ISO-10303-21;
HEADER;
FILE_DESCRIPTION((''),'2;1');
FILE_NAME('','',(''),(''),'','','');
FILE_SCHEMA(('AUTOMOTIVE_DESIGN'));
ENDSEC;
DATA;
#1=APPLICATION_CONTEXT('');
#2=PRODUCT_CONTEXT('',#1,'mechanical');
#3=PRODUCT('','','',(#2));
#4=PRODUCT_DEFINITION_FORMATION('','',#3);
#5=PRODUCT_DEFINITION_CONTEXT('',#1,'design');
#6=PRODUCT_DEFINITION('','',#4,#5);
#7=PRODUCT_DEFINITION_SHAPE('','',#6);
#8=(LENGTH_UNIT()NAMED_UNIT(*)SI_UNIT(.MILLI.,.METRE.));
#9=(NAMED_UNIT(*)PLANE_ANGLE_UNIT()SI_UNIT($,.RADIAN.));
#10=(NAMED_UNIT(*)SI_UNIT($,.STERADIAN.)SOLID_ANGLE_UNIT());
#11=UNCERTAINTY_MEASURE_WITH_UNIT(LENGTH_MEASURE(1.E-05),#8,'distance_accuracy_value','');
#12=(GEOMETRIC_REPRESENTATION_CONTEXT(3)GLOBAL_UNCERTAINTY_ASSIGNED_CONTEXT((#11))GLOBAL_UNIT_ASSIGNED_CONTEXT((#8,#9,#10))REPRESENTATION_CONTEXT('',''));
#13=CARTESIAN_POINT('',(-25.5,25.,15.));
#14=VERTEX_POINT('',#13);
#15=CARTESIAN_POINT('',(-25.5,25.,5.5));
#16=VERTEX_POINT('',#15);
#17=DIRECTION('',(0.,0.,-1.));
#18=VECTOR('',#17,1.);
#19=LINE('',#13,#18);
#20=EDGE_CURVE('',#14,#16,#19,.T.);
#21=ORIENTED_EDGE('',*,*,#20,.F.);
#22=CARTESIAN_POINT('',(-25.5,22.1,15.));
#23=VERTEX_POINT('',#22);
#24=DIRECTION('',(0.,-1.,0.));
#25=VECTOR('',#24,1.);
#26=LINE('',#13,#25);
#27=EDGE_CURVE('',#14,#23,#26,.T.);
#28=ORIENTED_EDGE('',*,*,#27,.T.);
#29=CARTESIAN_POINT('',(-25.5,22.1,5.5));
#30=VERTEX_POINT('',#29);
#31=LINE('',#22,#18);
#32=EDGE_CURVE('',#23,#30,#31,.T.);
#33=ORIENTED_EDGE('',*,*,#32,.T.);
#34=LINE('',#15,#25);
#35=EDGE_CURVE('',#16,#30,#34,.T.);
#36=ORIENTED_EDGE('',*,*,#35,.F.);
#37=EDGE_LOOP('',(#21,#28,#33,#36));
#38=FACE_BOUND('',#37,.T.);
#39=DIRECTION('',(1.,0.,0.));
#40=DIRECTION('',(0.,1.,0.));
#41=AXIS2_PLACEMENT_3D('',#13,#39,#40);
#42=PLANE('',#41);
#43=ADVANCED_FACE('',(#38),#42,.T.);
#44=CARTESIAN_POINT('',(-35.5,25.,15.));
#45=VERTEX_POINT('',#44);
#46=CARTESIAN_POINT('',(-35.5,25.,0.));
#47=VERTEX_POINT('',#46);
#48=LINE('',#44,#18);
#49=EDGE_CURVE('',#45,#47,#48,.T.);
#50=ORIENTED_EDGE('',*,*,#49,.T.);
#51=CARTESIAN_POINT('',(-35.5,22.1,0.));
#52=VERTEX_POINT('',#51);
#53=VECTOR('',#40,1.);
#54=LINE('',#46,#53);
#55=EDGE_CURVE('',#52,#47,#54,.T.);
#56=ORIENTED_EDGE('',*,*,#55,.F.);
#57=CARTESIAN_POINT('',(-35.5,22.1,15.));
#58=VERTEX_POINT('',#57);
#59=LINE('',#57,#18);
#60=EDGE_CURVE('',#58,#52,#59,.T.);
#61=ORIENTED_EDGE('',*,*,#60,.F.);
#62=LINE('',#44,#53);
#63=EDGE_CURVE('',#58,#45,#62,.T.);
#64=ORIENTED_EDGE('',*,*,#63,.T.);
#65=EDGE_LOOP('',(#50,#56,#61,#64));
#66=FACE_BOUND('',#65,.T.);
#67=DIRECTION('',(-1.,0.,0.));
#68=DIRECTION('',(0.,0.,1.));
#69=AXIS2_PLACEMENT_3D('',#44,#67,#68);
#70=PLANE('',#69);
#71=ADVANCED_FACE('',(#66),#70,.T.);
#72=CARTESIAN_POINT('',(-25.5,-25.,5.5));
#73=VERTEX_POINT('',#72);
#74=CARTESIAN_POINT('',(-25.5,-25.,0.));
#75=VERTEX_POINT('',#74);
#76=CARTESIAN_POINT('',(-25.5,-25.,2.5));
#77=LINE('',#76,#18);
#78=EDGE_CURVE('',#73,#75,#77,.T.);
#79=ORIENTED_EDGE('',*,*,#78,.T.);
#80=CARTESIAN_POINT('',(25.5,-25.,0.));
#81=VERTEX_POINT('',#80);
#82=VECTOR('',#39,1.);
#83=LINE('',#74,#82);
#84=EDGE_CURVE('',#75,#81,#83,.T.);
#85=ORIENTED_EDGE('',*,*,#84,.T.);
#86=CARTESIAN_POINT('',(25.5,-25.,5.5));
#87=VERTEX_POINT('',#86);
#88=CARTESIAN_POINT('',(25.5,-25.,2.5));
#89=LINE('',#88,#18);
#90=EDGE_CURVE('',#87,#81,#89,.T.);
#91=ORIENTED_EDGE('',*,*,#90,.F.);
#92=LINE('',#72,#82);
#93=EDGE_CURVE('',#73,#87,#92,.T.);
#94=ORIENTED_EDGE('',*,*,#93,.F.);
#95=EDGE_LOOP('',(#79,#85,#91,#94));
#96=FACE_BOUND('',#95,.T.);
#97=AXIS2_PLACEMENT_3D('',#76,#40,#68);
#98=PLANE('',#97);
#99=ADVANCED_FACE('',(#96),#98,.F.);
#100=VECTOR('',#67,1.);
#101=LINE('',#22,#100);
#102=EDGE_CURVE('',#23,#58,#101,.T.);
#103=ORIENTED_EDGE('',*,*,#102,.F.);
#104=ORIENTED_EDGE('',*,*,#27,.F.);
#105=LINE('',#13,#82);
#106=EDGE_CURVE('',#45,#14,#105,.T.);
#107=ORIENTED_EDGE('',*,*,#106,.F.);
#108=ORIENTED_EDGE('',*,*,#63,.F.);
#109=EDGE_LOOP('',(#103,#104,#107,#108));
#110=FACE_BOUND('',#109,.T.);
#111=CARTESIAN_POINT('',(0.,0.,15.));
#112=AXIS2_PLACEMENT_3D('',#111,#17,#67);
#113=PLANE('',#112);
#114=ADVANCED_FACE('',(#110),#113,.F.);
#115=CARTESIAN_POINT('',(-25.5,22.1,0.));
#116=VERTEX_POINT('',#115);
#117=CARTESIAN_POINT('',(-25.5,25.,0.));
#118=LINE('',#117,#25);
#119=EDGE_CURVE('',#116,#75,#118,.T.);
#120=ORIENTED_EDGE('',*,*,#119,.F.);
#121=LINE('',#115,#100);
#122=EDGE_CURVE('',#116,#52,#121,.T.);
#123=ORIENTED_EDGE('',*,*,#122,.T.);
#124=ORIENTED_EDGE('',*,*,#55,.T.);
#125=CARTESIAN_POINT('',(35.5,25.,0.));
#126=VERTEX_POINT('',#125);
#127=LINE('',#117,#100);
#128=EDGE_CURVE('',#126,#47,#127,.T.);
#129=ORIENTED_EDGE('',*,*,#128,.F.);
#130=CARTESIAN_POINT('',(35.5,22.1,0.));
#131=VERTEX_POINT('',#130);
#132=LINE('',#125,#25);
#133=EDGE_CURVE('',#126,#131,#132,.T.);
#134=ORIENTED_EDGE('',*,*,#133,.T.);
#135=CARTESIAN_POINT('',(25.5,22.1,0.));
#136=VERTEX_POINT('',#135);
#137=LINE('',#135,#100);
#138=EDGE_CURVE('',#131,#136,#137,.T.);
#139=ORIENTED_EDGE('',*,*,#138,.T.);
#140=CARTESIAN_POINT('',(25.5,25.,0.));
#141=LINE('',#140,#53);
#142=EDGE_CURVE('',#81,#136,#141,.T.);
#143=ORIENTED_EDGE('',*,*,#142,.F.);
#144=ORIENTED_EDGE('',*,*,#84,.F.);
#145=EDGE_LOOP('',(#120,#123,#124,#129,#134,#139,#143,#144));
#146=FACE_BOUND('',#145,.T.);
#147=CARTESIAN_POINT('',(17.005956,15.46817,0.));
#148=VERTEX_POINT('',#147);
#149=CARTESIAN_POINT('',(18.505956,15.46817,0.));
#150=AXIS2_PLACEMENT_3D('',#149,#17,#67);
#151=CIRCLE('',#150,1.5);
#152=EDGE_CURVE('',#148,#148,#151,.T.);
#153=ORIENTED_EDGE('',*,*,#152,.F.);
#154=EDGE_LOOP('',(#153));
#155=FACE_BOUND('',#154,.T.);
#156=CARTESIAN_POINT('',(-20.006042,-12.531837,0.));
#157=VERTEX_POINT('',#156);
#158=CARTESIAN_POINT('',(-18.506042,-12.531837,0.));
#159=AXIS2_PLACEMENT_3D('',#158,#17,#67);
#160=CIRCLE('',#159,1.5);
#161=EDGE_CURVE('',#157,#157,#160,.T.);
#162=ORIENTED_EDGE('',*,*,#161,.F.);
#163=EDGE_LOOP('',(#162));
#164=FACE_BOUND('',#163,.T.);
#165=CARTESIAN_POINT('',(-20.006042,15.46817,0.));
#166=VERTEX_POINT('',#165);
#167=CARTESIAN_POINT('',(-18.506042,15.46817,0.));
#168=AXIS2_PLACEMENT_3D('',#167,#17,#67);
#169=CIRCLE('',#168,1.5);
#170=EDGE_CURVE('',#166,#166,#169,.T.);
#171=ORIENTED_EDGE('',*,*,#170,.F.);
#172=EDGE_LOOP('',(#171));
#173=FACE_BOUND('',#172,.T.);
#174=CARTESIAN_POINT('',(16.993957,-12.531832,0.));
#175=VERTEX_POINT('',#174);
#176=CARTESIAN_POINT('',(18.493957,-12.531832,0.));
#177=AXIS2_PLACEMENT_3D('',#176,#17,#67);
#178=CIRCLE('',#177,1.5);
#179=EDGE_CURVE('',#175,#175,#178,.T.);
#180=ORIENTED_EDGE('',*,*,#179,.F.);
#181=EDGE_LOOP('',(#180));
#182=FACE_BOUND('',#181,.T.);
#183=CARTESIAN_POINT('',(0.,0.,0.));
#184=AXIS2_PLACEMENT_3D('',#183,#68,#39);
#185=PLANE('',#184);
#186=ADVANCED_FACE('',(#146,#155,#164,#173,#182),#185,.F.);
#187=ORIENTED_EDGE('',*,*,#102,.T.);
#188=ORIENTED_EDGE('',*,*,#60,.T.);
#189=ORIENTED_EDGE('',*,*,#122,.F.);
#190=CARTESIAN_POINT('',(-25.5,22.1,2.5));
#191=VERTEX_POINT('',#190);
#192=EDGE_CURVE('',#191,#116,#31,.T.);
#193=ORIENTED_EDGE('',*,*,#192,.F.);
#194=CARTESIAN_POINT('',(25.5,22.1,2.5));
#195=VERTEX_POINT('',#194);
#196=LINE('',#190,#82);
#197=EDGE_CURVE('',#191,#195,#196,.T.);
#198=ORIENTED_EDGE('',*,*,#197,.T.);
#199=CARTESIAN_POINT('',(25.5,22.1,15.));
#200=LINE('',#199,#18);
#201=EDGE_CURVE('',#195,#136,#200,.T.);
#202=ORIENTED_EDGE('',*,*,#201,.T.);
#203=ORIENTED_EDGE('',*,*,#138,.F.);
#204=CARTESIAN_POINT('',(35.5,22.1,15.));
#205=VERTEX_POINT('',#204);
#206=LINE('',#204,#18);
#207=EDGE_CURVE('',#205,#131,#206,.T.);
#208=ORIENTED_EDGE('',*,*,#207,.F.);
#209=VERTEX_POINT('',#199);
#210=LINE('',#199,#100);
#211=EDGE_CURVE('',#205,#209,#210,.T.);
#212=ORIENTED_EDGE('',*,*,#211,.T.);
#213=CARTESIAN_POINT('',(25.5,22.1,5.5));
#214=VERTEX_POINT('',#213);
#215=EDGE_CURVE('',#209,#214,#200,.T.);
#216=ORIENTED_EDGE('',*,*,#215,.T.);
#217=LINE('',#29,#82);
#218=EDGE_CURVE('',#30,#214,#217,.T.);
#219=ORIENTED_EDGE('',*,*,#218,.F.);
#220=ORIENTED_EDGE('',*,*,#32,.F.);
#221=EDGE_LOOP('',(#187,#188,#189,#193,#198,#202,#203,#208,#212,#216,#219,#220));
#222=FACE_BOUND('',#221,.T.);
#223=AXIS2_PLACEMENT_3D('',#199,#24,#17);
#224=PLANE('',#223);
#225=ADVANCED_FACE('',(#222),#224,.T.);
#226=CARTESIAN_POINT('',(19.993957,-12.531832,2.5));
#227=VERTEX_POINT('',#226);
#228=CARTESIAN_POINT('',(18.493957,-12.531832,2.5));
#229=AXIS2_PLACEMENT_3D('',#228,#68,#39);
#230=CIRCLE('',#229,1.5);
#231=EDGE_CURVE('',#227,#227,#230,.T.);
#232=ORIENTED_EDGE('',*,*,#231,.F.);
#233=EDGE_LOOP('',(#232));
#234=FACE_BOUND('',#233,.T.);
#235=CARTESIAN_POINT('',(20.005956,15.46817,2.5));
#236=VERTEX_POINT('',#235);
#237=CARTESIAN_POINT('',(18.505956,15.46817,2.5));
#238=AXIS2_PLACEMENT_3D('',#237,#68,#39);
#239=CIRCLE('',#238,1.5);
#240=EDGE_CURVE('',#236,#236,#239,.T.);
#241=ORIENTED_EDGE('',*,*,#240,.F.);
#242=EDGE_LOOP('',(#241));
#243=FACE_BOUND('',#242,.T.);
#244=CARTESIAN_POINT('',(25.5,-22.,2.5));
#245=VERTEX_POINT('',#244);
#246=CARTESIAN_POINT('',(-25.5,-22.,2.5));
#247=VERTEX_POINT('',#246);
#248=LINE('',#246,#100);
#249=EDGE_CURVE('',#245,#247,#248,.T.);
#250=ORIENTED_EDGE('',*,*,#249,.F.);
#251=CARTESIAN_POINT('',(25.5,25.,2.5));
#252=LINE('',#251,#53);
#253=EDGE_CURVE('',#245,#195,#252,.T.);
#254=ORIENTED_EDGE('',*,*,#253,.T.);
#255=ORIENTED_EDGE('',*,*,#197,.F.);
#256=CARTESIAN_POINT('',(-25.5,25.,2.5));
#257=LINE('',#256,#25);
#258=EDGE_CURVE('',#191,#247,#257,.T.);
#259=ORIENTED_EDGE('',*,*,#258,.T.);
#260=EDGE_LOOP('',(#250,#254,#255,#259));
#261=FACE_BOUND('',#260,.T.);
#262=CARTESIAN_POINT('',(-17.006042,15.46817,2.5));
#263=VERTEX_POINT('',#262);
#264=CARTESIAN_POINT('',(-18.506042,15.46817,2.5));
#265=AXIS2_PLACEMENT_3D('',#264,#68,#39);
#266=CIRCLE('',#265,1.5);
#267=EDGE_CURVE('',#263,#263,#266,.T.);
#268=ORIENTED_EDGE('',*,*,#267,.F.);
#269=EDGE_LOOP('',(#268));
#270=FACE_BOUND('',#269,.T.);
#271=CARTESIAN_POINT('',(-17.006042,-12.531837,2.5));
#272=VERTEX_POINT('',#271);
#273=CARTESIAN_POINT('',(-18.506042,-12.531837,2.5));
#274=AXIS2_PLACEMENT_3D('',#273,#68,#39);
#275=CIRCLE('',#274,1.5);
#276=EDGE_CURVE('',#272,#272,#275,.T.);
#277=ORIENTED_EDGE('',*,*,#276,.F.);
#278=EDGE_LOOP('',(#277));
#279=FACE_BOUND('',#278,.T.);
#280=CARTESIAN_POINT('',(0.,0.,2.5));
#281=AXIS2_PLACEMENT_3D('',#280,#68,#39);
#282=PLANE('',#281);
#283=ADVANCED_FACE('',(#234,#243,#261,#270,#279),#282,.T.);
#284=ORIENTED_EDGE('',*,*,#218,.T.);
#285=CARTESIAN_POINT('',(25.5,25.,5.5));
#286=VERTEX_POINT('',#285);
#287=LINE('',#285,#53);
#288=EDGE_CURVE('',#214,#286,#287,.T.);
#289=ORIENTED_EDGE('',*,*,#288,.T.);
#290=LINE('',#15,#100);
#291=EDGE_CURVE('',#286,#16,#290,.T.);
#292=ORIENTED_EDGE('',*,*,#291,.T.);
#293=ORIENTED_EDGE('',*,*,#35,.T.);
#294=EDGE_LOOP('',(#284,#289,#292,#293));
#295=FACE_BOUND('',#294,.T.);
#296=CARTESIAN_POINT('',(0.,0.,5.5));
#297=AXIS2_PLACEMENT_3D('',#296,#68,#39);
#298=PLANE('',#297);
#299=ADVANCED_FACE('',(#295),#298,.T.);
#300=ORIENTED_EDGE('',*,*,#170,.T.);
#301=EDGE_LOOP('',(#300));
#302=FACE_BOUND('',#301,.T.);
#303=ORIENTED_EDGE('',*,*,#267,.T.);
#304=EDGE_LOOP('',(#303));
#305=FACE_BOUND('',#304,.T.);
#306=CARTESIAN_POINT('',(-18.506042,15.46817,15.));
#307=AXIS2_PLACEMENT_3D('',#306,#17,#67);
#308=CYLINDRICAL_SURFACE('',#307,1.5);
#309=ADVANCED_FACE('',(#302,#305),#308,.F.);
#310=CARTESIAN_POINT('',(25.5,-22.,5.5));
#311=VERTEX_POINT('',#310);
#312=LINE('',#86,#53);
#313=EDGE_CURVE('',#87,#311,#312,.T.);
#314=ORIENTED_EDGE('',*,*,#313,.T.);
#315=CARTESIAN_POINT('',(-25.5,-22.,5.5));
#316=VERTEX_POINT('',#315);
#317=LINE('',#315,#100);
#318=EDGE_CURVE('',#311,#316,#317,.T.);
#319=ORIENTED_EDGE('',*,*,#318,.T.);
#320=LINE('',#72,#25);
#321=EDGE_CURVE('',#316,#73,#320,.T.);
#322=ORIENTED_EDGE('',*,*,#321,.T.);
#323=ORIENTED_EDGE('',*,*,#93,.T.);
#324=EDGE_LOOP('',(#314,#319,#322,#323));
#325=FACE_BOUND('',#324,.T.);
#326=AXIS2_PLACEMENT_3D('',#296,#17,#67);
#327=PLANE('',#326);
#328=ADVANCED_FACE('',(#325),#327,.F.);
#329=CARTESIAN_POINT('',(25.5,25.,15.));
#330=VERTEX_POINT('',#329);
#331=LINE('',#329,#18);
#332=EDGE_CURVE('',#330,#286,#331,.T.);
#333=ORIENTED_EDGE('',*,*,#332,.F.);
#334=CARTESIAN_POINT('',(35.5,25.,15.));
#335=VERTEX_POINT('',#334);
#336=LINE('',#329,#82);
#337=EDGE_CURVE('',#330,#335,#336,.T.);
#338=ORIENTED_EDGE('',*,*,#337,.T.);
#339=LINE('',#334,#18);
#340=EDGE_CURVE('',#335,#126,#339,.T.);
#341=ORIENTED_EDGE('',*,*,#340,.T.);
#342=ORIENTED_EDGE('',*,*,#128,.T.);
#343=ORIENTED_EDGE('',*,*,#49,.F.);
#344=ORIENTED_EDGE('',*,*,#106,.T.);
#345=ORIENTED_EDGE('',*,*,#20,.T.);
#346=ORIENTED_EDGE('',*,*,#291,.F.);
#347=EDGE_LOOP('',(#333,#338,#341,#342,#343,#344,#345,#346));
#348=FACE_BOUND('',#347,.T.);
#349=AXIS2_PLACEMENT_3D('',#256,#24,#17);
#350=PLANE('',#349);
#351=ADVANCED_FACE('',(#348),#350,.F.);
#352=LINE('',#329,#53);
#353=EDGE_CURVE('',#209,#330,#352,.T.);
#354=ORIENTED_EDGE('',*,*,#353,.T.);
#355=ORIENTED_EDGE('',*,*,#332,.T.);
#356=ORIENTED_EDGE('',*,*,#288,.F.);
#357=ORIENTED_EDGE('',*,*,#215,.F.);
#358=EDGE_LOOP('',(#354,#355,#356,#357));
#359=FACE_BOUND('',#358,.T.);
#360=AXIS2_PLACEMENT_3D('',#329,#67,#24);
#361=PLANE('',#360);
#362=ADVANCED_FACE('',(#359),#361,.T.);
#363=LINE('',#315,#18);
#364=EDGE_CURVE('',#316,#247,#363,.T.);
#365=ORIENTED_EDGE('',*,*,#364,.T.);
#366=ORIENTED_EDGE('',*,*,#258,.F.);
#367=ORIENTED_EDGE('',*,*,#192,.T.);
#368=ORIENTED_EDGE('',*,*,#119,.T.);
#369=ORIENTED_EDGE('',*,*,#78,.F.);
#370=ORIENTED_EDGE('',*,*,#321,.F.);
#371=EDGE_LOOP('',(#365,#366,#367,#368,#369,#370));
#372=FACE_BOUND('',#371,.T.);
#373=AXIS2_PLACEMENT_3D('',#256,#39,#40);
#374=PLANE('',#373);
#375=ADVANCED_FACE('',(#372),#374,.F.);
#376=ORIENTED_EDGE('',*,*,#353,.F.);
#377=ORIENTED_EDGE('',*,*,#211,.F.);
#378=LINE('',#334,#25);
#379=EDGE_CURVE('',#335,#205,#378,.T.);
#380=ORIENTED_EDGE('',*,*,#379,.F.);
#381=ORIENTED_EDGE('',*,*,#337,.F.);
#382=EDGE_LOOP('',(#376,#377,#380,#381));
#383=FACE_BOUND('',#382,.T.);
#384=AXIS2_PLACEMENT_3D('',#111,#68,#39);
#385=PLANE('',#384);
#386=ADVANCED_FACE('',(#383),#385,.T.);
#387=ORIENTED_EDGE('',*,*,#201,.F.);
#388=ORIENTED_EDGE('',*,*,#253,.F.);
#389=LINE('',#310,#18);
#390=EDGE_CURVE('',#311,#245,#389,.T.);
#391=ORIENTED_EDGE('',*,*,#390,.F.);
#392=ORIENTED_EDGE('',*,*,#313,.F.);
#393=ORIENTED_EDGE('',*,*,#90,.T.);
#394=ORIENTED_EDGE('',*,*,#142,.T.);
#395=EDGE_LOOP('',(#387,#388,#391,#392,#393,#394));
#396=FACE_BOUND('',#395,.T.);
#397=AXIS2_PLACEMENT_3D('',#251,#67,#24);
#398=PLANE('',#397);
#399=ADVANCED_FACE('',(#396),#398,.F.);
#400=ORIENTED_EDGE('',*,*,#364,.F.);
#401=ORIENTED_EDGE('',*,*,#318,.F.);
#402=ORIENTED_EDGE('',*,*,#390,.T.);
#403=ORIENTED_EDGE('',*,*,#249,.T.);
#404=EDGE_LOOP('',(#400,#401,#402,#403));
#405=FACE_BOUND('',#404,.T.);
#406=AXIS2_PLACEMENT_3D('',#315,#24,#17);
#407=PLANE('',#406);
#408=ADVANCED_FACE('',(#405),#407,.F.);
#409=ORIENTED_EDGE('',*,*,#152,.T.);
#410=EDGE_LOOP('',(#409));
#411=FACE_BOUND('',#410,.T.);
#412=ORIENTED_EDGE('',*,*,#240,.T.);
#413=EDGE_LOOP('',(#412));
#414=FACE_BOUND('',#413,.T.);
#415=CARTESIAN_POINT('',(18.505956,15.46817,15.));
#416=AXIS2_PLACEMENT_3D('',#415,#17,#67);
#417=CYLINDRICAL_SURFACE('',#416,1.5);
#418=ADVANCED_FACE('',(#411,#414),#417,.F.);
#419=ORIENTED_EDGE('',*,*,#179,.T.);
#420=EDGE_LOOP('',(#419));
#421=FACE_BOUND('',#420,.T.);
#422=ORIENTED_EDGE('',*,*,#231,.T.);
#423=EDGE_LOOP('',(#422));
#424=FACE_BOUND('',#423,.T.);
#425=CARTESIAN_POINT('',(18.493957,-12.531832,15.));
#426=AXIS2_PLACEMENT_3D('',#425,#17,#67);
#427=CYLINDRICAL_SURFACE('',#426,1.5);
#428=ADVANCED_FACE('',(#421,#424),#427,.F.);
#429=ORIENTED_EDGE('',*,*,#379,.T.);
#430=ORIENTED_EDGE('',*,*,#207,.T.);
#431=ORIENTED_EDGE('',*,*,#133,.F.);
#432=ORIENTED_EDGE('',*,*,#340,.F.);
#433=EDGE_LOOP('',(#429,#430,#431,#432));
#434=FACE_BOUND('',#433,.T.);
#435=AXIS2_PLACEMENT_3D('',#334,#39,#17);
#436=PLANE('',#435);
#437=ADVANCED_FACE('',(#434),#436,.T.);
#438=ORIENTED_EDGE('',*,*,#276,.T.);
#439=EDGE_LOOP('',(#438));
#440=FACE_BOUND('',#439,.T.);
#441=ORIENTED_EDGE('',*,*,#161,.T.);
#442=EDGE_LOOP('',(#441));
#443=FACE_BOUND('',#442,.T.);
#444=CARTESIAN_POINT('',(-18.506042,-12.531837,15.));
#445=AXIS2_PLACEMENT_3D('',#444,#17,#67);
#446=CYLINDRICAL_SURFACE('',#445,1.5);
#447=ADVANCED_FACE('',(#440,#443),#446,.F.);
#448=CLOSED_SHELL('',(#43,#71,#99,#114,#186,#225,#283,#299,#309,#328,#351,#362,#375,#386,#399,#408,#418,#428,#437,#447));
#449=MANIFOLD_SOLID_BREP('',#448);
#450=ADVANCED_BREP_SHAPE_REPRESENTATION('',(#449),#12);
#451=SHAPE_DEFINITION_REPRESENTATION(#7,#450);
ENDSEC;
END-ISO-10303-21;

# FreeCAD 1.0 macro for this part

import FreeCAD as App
import Part
import Sketcher
Q = App.Units.Quantity


def add_polygon(sketch, points):
    """Adds a closed chain of lines whose ends are joined by coincident constraints."""
    first, n = sketch.GeometryCount, len(points)
    for a, b in zip(points, points[1:] + points[:1]):
        sketch.addGeometry(Part.LineSegment(App.Vector(*a, 0), App.Vector(*b, 0)), False)
    for i in range(n):
        sketch.addConstraint(Sketcher.Constraint("Coincident", first + i, 2, first + (i + 1) % n, 1))

doc = App.newDocument("Part")
body = doc.addObject("PartDesign::Body", "Body")

sketch1 = doc.addObject("Sketcher::SketchObject", "Sketch")
body.addObject(sketch1)
sketch1.AttachmentSupport = (doc.XY_Plane, [""])
sketch1.MapMode = "FlatFace"
add_polygon(sketch1, [(-26, 25), (-26, -25), (26, -25), (26, 25)])
sketch1.addConstraint([
    Sketcher.Constraint("Vertical", 0),
    Sketcher.Constraint("Horizontal", 1),
    Sketcher.Constraint("Vertical", 2),
    Sketcher.Constraint("Horizontal", 3),
    Sketcher.Constraint("Symmetric", 0, 2, 2, 2, -1, 1),
    Sketcher.Constraint("DistanceX", 1, 1, 1, 2, Q("51 mm")),
    Sketcher.Constraint("DistanceY", 0, 2, 0, 1, Q("50 mm")),
])
pad1 = doc.addObject("PartDesign::Pad", "Pad")
body.addObject(pad1)
pad1.Profile = sketch1
pad1.Length = 2.5

sketch2 = doc.addObject("Sketcher::SketchObject", "Sketch001")
body.addObject(sketch2)
sketch2.AttachmentSupport = (doc.XY_Plane, [""])
sketch2.MapMode = "FlatFace"
add_polygon(sketch2, [(35.5, 25), (35.5, 22.1), (25.5, 22.1), (25.5, 25)])
add_polygon(sketch2, [(-25.5, 25), (-25.5, 22.1), (-35.5, 22.1), (-35.5, 25)])
sketch2.addConstraint([
    Sketcher.Constraint("Vertical", 0),
    Sketcher.Constraint("Horizontal", 1),
    Sketcher.Constraint("Vertical", 2),
    Sketcher.Constraint("Horizontal", 3),
    Sketcher.Constraint("Vertical", 4),
    Sketcher.Constraint("Horizontal", 5),
    Sketcher.Constraint("Vertical", 6),
    Sketcher.Constraint("Horizontal", 7),
    Sketcher.Constraint("Symmetric", 1, 2, 4, 2, -2),
    Sketcher.Constraint("Symmetric", 3, 2, 6, 2, -2),
    Sketcher.Constraint("DistanceX", 1, 2, 1, 1, Q("10 mm")),
    Sketcher.Constraint("DistanceY", 0, 2, 0, 1, Q("2.9 mm")),
    Sketcher.Constraint("DistanceY", -1, 1, 2, 2, Q("25 mm")),
    Sketcher.Constraint("DistanceX", 4, 2, 1, 2, Q("51 mm")),
])
pad2 = doc.addObject("PartDesign::Pad", "Pad001")
body.addObject(pad2)
pad2.Profile = sketch2
pad2.Length = 15

sketch3 = doc.addObject("Sketcher::SketchObject", "Sketch002")
body.addObject(sketch3)
sketch3.AttachmentSupport = (doc.XY_Plane, [""])
sketch3.MapMode = "FlatFace"
sketch3.AttachmentOffset = App.Placement(App.Vector(0, 0, 2.5), App.Rotation())
add_polygon(sketch3, [(-25.5, 25), (-25.5, 22.1), (25.5, 22.1), (25.5, 25)])
add_polygon(sketch3, [(-25.5, -22), (-25.5, -25), (25.5, -25), (25.5, -22)])
sketch3.addConstraint([
    Sketcher.Constraint("Vertical", 0),
    Sketcher.Constraint("Horizontal", 1),
    Sketcher.Constraint("Vertical", 2),
    Sketcher.Constraint("Horizontal", 3),
    Sketcher.Constraint("Vertical", 4),
    Sketcher.Constraint("Horizontal", 5),
    Sketcher.Constraint("Vertical", 6),
    Sketcher.Constraint("Horizontal", 7),
    Sketcher.Constraint("Symmetric", 2, 2, 4, 2, -1, 1),
    Sketcher.Constraint("Vertical", 3, 2, 4, 2),
    Sketcher.Constraint("Vertical", 2, 2, 5, 2),
    Sketcher.Constraint("DistanceX", 1, 1, 1, 2, Q("51 mm")),
    Sketcher.Constraint("DistanceY", 4, 2, 4, 1, Q("3 mm")),
    Sketcher.Constraint("DistanceY", 0, 2, 0, 1, Q("2.9 mm")),
    Sketcher.Constraint("DistanceY", -1, 1, 2, 2, Q("25 mm")),
])
pad3 = doc.addObject("PartDesign::Pad", "Pad002")
body.addObject(pad3)
pad3.Profile = sketch3
pad3.Length = 3

sketch4 = doc.addObject("Sketcher::SketchObject", "Sketch003")
body.addObject(sketch4)
sketch4.AttachmentSupport = (doc.XY_Plane, [""])
sketch4.MapMode = "FlatFace"
sketch4.addGeometry([
    Part.Circle(App.Vector(-18.5, -12.5, 0), App.Vector(0, 0, 1), 1.5),
    Part.Circle(App.Vector(18.5, -12.5, 0), App.Vector(0, 0, 1), 1.5),
    Part.Circle(App.Vector(18.5, 15.5, 0), App.Vector(0, 0, 1), 1.5),
    Part.Circle(App.Vector(-18.5, 15.5, 0), App.Vector(0, 0, 1), 1.5),
], False)
sketch4.addConstraint([
    Sketcher.Constraint("Equal", 0, 1),
    Sketcher.Constraint("Equal", 1, 2),
    Sketcher.Constraint("Equal", 2, 3),
    Sketcher.Constraint("Horizontal", 2, 3, 3, 3),
    Sketcher.Constraint("Vertical", 0, 3, 3, 3),
    Sketcher.Constraint("Diameter", 0, Q("3 mm")),
    Sketcher.Constraint("DistanceX", 0, 3, 1, 3, Q("36.999999 mm")),
    Sketcher.Constraint("DistanceX", 1, 3, 2, 3, Q("0.011999 mm")),
    Sketcher.Constraint("DistanceY", -1, 1, 2, 3, Q("15.46817 mm")),
    Sketcher.Constraint("DistanceX", 0, 3, -1, 1, Q("18.506042 mm")),
    Sketcher.Constraint("DistanceY", 0, 3, -1, 1, Q("12.531837 mm")),
    Sketcher.Constraint("DistanceY", 1, 3, -1, 1, Q("12.531832 mm")),
])
pocket1 = doc.addObject("PartDesign::Pocket", "Pocket")
body.addObject(pocket1)
pocket1.Profile = sketch4
pocket1.Type = "ThroughAll"
pocket1.Reversed = True

doc.recompute()
